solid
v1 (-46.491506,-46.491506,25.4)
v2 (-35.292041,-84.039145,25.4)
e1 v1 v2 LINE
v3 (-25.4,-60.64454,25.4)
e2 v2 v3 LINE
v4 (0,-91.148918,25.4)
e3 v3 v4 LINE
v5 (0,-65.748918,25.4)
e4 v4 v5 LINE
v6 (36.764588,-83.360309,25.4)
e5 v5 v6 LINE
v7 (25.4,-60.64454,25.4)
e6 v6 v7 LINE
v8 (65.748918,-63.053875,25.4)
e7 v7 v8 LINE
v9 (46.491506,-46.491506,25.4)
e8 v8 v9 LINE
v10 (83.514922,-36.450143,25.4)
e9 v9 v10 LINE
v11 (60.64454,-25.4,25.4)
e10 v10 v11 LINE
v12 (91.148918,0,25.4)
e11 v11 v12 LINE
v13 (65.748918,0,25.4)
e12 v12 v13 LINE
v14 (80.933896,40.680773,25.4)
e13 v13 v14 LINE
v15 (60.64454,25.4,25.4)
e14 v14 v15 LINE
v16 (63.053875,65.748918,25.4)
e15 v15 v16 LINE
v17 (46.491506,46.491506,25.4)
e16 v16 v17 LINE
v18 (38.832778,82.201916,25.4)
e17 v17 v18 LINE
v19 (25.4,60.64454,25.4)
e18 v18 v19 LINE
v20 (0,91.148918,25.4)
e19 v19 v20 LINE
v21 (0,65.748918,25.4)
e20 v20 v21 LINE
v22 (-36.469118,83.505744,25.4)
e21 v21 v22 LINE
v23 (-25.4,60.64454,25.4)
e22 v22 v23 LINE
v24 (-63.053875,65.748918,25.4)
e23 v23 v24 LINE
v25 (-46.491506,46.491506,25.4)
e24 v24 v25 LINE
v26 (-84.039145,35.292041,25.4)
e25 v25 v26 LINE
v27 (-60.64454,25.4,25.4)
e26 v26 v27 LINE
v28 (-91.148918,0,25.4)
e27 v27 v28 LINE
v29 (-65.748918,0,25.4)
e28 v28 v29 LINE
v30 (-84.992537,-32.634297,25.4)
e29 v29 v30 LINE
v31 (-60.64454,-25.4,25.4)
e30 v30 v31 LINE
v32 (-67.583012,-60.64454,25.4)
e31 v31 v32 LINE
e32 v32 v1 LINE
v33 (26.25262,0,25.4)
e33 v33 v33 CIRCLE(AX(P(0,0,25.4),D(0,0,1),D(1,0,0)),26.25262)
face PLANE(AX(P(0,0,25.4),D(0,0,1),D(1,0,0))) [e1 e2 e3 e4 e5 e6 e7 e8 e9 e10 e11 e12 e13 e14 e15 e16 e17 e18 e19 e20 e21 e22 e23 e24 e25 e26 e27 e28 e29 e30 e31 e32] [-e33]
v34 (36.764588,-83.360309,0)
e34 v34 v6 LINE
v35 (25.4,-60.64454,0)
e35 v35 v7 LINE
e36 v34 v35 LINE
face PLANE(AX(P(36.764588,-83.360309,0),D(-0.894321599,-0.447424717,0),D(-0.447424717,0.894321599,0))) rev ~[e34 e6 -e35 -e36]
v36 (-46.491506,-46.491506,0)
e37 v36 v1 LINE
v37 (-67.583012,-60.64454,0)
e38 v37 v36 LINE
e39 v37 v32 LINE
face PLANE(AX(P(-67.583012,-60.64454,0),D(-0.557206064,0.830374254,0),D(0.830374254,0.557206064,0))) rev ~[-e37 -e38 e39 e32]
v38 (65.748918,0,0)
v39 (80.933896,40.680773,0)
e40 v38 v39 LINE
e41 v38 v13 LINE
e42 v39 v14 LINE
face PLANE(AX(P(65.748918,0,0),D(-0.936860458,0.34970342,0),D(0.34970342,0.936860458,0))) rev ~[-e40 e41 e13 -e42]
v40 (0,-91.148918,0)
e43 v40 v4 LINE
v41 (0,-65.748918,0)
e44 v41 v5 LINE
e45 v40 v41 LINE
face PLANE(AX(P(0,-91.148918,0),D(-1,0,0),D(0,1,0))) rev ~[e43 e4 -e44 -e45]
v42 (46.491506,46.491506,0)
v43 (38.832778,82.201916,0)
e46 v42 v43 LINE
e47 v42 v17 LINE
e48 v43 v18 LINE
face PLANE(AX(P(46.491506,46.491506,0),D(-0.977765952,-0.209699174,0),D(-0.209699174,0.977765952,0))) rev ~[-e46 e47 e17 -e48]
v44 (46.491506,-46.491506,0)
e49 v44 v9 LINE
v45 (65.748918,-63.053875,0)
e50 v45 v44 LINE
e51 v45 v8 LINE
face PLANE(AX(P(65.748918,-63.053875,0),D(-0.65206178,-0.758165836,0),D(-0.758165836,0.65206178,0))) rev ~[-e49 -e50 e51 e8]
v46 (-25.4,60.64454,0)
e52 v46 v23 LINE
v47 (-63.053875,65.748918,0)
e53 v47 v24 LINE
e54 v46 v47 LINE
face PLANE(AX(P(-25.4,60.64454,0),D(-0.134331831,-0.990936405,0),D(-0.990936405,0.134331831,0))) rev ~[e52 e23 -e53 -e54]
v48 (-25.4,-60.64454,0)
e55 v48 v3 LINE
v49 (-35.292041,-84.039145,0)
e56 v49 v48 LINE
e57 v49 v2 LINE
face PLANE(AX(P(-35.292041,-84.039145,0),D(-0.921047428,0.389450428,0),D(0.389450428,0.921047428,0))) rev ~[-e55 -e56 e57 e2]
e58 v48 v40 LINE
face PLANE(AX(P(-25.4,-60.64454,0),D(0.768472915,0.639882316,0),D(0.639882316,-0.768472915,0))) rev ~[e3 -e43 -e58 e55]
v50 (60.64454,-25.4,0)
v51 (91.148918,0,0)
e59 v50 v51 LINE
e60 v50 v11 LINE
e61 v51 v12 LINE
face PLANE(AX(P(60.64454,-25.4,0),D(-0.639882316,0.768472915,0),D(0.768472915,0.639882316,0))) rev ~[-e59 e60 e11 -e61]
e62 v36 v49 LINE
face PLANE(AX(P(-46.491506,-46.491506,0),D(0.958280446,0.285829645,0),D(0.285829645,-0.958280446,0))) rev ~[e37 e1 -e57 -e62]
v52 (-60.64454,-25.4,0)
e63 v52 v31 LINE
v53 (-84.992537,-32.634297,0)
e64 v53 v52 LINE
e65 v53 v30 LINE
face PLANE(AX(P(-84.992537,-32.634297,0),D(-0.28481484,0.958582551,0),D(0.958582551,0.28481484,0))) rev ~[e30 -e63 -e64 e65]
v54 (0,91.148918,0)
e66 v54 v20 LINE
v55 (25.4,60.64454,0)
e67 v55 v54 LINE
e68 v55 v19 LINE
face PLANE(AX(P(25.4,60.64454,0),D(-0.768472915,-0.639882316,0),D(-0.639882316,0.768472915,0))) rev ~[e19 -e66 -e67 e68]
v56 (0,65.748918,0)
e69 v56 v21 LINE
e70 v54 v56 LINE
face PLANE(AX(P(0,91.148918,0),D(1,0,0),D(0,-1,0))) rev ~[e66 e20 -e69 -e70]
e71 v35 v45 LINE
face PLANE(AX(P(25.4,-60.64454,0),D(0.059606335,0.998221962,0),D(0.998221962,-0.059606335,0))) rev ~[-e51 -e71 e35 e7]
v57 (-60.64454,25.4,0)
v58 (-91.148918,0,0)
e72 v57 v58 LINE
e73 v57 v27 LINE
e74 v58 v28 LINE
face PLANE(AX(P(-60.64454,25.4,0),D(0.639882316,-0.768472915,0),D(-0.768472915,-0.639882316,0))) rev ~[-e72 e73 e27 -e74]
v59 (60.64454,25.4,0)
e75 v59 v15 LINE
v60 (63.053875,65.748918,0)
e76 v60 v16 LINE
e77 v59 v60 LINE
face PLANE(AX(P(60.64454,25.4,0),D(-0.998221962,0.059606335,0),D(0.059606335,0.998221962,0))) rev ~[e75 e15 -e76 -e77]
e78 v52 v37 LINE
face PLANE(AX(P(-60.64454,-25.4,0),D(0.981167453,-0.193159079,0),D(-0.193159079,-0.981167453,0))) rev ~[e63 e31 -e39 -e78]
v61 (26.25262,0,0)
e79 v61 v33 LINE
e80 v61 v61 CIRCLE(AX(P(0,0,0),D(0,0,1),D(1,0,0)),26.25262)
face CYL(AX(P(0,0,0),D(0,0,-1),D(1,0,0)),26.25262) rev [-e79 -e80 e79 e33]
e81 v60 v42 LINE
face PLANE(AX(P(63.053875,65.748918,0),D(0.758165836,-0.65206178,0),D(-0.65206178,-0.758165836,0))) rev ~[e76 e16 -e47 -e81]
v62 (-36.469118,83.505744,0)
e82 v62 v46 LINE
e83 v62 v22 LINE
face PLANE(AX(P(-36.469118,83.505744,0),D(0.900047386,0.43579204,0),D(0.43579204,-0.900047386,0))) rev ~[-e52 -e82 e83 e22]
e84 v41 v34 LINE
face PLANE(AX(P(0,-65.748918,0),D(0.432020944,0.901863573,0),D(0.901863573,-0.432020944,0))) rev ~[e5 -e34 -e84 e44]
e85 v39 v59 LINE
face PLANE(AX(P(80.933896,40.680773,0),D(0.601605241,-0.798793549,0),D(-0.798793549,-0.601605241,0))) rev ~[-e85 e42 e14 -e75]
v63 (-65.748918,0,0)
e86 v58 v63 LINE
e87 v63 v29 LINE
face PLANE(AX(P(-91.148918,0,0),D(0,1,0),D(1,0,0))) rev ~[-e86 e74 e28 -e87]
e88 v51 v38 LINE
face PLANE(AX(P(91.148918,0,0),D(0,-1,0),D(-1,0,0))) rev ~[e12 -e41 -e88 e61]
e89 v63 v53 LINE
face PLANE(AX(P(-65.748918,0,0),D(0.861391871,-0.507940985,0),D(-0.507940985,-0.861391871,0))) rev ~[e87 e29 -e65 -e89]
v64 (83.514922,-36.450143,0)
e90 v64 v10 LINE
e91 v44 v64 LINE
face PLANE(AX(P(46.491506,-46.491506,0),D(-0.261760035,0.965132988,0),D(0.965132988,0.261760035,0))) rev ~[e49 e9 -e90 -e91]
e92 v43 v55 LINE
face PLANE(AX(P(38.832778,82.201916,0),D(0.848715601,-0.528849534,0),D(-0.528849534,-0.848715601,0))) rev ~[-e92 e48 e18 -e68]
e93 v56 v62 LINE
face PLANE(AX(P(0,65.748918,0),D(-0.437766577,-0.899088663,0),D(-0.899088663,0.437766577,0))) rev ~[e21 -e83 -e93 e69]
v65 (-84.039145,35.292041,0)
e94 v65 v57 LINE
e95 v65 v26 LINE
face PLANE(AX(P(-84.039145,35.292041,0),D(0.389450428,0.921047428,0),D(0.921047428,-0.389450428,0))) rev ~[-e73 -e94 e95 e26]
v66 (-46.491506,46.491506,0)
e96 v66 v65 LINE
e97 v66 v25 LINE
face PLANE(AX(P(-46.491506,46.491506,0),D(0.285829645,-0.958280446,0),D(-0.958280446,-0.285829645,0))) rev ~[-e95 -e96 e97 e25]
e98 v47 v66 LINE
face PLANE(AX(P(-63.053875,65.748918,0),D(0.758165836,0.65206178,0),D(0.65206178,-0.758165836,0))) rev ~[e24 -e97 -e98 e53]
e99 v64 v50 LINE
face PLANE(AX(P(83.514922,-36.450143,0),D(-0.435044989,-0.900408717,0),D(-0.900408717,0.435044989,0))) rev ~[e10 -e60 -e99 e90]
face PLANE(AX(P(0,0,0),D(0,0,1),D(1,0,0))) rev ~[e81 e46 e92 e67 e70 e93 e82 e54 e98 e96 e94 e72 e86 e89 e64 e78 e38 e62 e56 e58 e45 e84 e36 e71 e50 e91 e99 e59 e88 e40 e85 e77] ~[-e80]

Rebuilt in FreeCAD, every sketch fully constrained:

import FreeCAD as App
import Part
import Sketcher
Q = App.Units.Quantity


def add_polygon(sketch, points):
    """Adds a closed chain of lines whose ends are joined by coincident constraints."""
    first, n = sketch.GeometryCount, len(points)
    for a, b in zip(points, points[1:] + points[:1]):
        sketch.addGeometry(Part.LineSegment(App.Vector(*a, 0), App.Vector(*b, 0)), False)
    for i in range(n):
        sketch.addConstraint(Sketcher.Constraint("Coincident", first + i, 2, first + (i + 1) % n, 1))

doc = App.newDocument("Part")
body = doc.addObject("PartDesign::Body", "Body")

sketch1 = body.newObject("Sketcher::SketchObject", "Sketch")
sketch1.AttachmentSupport = (doc.getObject("XY_Plane"), [""])
sketch1.MapMode = "FlatFace"
add_polygon(sketch1, [(-25, 61), (-63, 66), (-46, 46), (-84, 35), (-61, 25), (-91, 0), (-66, 0), (-85, -33), (-61, -25), (-68, -61), (-46, -46), (-35, -84), (-25, -61), (0, -91), (0, -66), (37, -83), (25, -61), (66, -63), (46, -46), (84, -36), (61, -25), (91, 0), (66, 0), (81, 41), (61, 25), (63, 66), (46, 46), (39, 82), (25, 61), (0, 91), (0, 66), (-36, 84)])
sketch1.addGeometry(Part.Circle(App.Vector(0, 0, 0), App.Vector(0, 0, 1), 26), False)
sketch1.addConstraint([
    Sketcher.Constraint("Horizontal", 5),
    Sketcher.Constraint("Vertical", 13),
    Sketcher.Constraint("Horizontal", 21),
    Sketcher.Constraint("Vertical", 29),
    Sketcher.Constraint("Coincident", 32, 3, -1, 1),
    Sketcher.Constraint("Symmetric", 1, 2, 17, 2, -1, 1),
    Sketcher.Constraint("Symmetric", 3, 2, 19, 2, -1, 1),
    Sketcher.Constraint("Symmetric", 4, 2, 20, 2, -1, 1),
    Sketcher.Constraint("Symmetric", 7, 2, 23, 2, -1, 1),
    Sketcher.Constraint("Symmetric", 9, 2, 25, 2, -1, 1),
    Sketcher.Constraint("Symmetric", 11, 2, 27, 2, -1, 1),
    Sketcher.Constraint("Symmetric", 12, 2, 28, 2, -1, 1),
    Sketcher.Constraint("Symmetric", 15, 2, 31, 2, -1, 1),
    Sketcher.Constraint("Symmetric", 11, 2, 15, 2, -2),
    Sketcher.Constraint("Symmetric", 9, 2, 17, 2, -2),
    Sketcher.Constraint("Symmetric", 7, 2, 19, 2, -2),
    Sketcher.Constraint("Symmetric", 5, 2, 21, 2, -2),
    Sketcher.Constraint("Symmetric", 0, 2, 24, 2, -2),
    Sketcher.Constraint("Symmetric", 13, 2, 29, 2, -1),
    Sketcher.Constraint("Perpendicular", 2, 10),
    Sketcher.Constraint("Perpendicular", 3, 11),
    Sketcher.Constraint("Perpendicular", 4, 12),
    Sketcher.Constraint("Perpendicular", 16, 24),
    Sketcher.Constraint("Perpendicular", 17, 25),
    Sketcher.Constraint("Horizontal", 8, 2, 11, 2),
    Sketcher.Constraint("Horizontal", 24, 2, 29, 2),
    Sketcher.Constraint("Vertical", 16, 2, 21, 2),
    Sketcher.Constraint("Equal", 21, 13),
    Sketcher.Constraint("Equal", 1, 3),
    Sketcher.Constraint("Equal", 3, 7),
    Sketcher.Constraint("Equal", 7, 9),
    Sketcher.Constraint("Equal", 2, 10),
    Sketcher.Constraint("Equal", 9, 11),
    Sketcher.Constraint("Equal", 11, 15),
    Sketcher.Constraint("Equal", 17, 19),
    Sketcher.Constraint("Equal", 19, 23),
    Sketcher.Constraint("Equal", 25, 27),
    Sketcher.Constraint("Equal", 27, 31),
    Sketcher.Constraint("DistanceX", 5, 1, 5, 2, Q("1 in")),
    Sketcher.Constraint("Distance", 1, Q("1 in")),
    Sketcher.Constraint("DistanceY", -1, 1, 3, 2, Q("1 in")),
    Sketcher.Constraint("Angle", 0, Q("172.280015 deg")),
    Sketcher.Constraint("Diameter", 32, Q("52.50524 mm")),
    Sketcher.Constraint("Distance", 4, Q("39.694799 mm")),
    Sketcher.Constraint("DistanceX", 7, 2, 10, 2, Q("25.352499 mm")),
    Sketcher.Constraint("DistanceY", 26, 2, 28, 2, Q("8.947002 mm")),
    Sketcher.Constraint("Distance", 6, Q("37.885541 mm")),
    Sketcher.Constraint("Distance", 26, Q("36.522452 mm")),
    Sketcher.Constraint("DistanceX", -1, 1, 14, 2, Q("36.764588 mm")),
    Sketcher.Constraint("DistanceX", -1, 1, 18, 2, Q("83.514922 mm")),
    Sketcher.Constraint("DistanceX", 30, 2, -1, 1, Q("36.469118 mm")),
    Sketcher.Constraint("DistanceX", 22, 2, 20, 2, Q("10.215022 mm")),
])
pad1 = body.newObject("PartDesign::Pad", "Pad")
pad1.Profile = sketch1
pad1.Length = Q("1 in")

doc.recompute()
